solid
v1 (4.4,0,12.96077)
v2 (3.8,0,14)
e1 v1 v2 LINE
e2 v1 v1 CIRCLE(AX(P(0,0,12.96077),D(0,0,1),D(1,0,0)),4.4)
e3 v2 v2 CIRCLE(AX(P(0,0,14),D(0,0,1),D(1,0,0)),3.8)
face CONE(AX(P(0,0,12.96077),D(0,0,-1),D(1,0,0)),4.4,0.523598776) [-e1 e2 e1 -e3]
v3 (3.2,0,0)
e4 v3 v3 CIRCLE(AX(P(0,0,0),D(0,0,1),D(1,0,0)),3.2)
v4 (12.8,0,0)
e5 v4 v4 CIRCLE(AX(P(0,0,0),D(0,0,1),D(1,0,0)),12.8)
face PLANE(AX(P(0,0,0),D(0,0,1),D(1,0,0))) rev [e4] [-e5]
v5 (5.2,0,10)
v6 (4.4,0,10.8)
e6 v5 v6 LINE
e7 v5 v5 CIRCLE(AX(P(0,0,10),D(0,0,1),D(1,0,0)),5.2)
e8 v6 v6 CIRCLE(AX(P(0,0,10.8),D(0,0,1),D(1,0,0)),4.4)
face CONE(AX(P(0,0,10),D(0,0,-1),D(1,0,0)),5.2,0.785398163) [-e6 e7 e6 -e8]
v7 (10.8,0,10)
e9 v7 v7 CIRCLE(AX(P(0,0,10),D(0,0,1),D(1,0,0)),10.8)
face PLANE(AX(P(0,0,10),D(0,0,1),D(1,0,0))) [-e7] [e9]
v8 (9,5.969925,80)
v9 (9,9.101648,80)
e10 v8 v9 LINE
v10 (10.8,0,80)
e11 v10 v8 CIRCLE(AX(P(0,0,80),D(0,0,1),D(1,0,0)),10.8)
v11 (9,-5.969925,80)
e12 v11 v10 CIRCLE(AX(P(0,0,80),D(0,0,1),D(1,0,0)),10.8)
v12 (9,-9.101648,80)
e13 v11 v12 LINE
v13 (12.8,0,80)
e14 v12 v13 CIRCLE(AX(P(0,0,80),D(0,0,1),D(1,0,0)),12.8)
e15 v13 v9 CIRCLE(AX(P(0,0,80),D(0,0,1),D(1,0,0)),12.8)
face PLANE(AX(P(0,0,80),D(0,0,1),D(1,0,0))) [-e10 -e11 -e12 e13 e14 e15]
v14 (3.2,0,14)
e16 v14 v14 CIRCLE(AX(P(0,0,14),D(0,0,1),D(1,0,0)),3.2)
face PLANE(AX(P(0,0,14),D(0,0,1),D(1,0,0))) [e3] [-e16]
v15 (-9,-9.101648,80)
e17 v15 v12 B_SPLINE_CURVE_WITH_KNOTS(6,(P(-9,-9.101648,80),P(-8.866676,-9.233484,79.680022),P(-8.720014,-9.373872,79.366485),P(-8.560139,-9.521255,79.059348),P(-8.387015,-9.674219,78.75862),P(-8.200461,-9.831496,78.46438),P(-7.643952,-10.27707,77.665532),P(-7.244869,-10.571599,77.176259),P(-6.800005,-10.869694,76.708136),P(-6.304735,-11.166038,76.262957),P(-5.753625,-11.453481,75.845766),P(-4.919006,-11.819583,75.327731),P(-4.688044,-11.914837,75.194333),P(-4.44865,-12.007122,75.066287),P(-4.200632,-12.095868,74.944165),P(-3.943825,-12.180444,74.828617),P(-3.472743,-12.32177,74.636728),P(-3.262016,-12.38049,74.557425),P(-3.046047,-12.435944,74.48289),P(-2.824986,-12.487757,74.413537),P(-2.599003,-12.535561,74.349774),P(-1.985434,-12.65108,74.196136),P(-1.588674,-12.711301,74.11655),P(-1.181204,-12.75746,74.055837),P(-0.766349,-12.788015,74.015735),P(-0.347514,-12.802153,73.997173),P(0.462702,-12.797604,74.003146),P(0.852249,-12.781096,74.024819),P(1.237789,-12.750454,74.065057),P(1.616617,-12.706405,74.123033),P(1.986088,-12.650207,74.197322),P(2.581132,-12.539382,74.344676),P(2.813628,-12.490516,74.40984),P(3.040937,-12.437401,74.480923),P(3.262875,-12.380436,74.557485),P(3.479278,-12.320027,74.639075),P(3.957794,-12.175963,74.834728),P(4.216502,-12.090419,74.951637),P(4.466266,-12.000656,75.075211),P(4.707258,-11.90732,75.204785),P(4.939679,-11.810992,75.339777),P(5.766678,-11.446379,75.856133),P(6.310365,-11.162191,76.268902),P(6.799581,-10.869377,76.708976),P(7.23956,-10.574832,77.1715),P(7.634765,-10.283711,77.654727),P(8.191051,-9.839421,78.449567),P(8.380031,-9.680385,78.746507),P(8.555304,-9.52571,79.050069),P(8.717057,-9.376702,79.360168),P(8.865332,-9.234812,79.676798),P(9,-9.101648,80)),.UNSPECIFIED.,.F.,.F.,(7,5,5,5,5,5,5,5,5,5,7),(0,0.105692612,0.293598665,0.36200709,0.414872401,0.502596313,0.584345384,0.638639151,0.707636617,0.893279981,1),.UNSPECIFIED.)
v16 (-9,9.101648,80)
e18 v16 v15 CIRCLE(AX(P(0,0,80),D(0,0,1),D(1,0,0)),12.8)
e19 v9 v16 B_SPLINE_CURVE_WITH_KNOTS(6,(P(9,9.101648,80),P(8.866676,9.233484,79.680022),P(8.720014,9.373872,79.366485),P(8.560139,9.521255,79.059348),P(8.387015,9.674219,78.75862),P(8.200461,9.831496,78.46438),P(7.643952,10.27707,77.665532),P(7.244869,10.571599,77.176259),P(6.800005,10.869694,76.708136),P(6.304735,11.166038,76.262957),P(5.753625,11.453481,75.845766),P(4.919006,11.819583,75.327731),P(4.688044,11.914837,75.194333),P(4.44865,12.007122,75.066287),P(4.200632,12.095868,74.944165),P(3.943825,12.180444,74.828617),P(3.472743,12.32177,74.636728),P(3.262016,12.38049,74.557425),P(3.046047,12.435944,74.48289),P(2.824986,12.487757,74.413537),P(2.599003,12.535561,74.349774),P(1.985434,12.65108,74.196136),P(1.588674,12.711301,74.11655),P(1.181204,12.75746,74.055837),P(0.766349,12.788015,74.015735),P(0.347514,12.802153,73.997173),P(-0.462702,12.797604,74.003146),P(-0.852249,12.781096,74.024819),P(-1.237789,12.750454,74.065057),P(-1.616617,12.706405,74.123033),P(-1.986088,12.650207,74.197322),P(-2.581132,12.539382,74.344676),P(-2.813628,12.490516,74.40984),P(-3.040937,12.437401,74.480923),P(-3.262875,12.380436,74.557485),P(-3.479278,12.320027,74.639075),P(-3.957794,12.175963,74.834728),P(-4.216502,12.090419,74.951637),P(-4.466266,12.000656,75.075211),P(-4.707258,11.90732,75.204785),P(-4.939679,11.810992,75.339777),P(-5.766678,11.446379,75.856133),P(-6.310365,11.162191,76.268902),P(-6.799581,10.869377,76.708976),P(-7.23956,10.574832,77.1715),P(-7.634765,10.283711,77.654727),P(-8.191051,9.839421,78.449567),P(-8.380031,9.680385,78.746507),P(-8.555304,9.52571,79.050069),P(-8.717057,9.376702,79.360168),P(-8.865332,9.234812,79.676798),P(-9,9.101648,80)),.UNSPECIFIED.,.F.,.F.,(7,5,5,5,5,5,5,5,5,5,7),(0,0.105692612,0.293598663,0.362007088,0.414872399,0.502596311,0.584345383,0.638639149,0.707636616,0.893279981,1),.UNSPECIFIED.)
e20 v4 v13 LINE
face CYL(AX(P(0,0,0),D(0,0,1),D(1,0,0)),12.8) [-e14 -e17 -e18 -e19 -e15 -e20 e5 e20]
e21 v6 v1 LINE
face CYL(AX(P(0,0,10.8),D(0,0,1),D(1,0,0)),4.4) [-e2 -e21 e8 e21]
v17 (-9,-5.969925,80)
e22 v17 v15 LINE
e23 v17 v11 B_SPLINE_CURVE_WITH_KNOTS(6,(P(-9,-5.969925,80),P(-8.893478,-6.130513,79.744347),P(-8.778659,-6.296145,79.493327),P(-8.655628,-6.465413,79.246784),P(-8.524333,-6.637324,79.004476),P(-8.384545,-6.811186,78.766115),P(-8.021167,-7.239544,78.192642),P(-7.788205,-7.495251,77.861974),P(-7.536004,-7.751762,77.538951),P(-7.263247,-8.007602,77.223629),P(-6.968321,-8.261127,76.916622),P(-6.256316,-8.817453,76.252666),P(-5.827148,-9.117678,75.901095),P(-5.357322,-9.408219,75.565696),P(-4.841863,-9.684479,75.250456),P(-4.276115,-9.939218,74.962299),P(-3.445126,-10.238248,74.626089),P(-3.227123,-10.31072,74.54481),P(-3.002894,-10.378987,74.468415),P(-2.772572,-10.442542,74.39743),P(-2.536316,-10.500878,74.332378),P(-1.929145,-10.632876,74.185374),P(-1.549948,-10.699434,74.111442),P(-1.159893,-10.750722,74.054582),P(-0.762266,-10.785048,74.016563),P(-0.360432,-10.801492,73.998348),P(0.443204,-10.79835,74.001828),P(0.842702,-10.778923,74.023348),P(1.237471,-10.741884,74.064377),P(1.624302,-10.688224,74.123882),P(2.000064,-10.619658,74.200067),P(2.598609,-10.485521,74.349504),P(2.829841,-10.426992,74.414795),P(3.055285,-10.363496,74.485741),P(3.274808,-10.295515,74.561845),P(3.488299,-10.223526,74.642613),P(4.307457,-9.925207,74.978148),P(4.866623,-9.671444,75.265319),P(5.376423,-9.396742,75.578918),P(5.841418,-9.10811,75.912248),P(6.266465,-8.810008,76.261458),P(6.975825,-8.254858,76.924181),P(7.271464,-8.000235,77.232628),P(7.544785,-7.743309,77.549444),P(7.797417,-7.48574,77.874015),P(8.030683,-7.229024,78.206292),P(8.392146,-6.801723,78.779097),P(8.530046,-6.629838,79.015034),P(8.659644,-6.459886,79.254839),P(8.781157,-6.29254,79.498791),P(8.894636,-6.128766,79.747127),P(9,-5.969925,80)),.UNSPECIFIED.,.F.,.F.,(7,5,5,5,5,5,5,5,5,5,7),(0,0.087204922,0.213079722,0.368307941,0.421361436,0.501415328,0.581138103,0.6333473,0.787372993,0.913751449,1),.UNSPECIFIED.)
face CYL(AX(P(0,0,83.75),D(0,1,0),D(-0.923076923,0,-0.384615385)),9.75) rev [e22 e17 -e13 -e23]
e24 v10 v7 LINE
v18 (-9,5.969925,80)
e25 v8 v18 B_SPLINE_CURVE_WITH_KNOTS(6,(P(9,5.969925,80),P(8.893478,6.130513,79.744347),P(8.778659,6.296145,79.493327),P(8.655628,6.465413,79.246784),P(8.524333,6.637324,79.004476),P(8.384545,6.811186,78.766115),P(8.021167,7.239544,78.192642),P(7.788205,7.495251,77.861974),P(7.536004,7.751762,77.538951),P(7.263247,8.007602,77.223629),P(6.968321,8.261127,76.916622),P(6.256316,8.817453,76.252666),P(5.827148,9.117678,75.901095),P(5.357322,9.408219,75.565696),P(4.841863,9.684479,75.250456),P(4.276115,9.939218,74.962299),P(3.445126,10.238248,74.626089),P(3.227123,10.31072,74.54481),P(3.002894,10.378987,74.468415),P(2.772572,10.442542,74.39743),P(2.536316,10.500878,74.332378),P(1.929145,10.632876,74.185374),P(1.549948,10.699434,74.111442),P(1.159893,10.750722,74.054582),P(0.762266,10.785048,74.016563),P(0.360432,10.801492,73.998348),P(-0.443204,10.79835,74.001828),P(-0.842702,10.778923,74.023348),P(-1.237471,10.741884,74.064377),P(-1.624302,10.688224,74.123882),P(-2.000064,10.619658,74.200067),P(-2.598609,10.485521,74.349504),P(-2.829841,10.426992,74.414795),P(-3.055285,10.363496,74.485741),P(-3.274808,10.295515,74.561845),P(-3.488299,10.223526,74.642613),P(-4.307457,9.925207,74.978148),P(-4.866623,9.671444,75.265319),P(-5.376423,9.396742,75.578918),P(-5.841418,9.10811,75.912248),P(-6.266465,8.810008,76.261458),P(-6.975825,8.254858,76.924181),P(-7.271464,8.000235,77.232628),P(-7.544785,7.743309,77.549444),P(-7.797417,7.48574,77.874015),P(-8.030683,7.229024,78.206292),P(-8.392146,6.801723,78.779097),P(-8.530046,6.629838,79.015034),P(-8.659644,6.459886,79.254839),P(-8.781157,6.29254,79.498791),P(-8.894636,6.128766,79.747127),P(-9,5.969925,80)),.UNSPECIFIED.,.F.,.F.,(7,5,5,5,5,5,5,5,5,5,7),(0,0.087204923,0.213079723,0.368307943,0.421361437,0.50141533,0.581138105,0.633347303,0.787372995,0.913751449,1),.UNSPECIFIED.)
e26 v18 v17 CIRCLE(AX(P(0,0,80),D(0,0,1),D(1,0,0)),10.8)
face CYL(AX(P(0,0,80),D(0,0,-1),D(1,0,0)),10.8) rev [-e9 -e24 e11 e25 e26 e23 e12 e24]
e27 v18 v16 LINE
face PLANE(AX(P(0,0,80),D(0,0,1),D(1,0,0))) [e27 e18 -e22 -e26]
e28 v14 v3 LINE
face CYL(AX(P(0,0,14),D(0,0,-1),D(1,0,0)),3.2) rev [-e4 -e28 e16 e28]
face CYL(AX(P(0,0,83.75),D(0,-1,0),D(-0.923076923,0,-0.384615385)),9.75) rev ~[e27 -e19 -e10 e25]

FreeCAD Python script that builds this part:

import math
import FreeCAD as App
import Part
import Sketcher
from FreeCAD import Vector
Q = App.Units.Quantity

doc = App.newDocument("Part")
body = doc.addObject("PartDesign::Body", "Body")

sketch1 = body.newObject("Sketcher::SketchObject", "Sketch")
sketch1.AttachmentSupport = (doc.getObject("XZ_Plane"), [""])
sketch1.MapMode = "FlatFace"
sketch1.addGeometry([
    Part.LineSegment(Vector(3.2, 0, 0), Vector(12.8, 0, 0)),
    Part.LineSegment(Vector(12.8, 0, 0), Vector(12.8, 80, 0)),
    Part.LineSegment(Vector(12.8, 80, 0), Vector(10.8, 80, 0)),
    Part.LineSegment(Vector(10.8, 80, 0), Vector(10.8, 10, 0)),
    Part.LineSegment(Vector(10.8, 10, 0), Vector(5.2, 10, 0)),
    Part.LineSegment(Vector(5.2, 10, 0), Vector(4.4, 10.8, 0)),
    Part.LineSegment(Vector(4.4, 10.8, 0), Vector(4.4, 12.96077, 0)),
    Part.LineSegment(Vector(4.4, 12.96077, 0), Vector(3.8, 14, 0)),
    Part.LineSegment(Vector(3.8, 14, 0), Vector(3.2, 14, 0)),
    Part.LineSegment(Vector(3.2, 14, 0), Vector(3.2, 0, 0)),
], False)
sketch1.addConstraint([
    Sketcher.Constraint("Coincident", 0, 2, 1, 1),
    Sketcher.Constraint("Coincident", 1, 2, 2, 1),
    Sketcher.Constraint("Coincident", 2, 2, 3, 1),
    Sketcher.Constraint("Coincident", 3, 2, 4, 1),
    Sketcher.Constraint("Coincident", 4, 2, 5, 1),
    Sketcher.Constraint("Coincident", 5, 2, 6, 1),
    Sketcher.Constraint("Coincident", 6, 2, 7, 1),
    Sketcher.Constraint("Coincident", 7, 2, 8, 1),
    Sketcher.Constraint("Coincident", 8, 2, 9, 1),
    Sketcher.Constraint("Coincident", 9, 2, 0, 1),
    Sketcher.Constraint("Horizontal", 0),
    Sketcher.Constraint("Vertical", 1),
    Sketcher.Constraint("Horizontal", 2),
    Sketcher.Constraint("Vertical", 3),
    Sketcher.Constraint("Horizontal", 4),
    Sketcher.Constraint("Vertical", 6),
    Sketcher.Constraint("Horizontal", 8),
    Sketcher.Constraint("Vertical", 9),
    Sketcher.Constraint("PointOnObject", 0, 2, -1),
    Sketcher.Constraint("DistanceX", 2, 2, 2, 1, 2.0),
    Sketcher.Constraint("DistanceY", 1, 1, 1, 2, 80.0),
    Sketcher.Constraint("DistanceY", 3, 2, 3, 1, 70.0),
    Sketcher.Constraint("DistanceY", 9, 2, 9, 1, 14.0),
    Sketcher.Constraint("Angle", 5, Q("135 deg")),
    Sketcher.Constraint("Angle", 7, Q("120 deg")),
    Sketcher.Constraint("DistanceX", 0, 1, 0, 2, 9.6),
    Sketcher.Constraint("DistanceX", 4, 2, 4, 1, 5.6),
    Sketcher.Constraint("DistanceX", 8, 2, 8, 1, 0.6),
    Sketcher.Constraint("Distance", 7, 1.2),
    Sketcher.Constraint("DistanceX", -1, 1, 0, 2, 12.8),
])
revolution = body.newObject("PartDesign::Revolution", "Revolution")
revolution.Profile = sketch1
revolution.ReferenceAxis = (sketch1, ["V_Axis"])
revolution.Angle = 360

sketch2 = body.newObject("Sketcher::SketchObject", "Sketch001")
sketch2.AttachmentSupport = (doc.getObject("XZ_Plane"), [""])
sketch2.MapMode = "FlatFace"
sketch2.addGeometry([
    Part.LineSegment(Vector(9, 80, 0), Vector(-9, 80, 0)),
    Part.ArcOfCircle(Part.Circle(Vector(0, 83.75, 0), Vector(0, 0, 1), 9.75), math.radians(-157.380135), math.radians(-22.619865)),
], False)
sketch2.addConstraint([
    Sketcher.Constraint("Coincident", 0, 1, 1, 2),
    Sketcher.Constraint("Coincident", 1, 1, 0, 2),
    Sketcher.Constraint("Horizontal", 0),
    Sketcher.Constraint("PointOnObject", 1, 3, -2),
    Sketcher.Constraint("DistanceX", 0, 2, 0, 1, 18.0),
    Sketcher.Constraint("Radius", 1, 9.75),
    Sketcher.Constraint("DistanceY", -1, 1, 0, 1, 80.0),
])
pocket1 = body.newObject("PartDesign::Pocket", "Pocket")
pocket1.Profile = sketch2
pocket1.Type = "ThroughAll"
pocket1.Midplane = True

doc.recompute()
